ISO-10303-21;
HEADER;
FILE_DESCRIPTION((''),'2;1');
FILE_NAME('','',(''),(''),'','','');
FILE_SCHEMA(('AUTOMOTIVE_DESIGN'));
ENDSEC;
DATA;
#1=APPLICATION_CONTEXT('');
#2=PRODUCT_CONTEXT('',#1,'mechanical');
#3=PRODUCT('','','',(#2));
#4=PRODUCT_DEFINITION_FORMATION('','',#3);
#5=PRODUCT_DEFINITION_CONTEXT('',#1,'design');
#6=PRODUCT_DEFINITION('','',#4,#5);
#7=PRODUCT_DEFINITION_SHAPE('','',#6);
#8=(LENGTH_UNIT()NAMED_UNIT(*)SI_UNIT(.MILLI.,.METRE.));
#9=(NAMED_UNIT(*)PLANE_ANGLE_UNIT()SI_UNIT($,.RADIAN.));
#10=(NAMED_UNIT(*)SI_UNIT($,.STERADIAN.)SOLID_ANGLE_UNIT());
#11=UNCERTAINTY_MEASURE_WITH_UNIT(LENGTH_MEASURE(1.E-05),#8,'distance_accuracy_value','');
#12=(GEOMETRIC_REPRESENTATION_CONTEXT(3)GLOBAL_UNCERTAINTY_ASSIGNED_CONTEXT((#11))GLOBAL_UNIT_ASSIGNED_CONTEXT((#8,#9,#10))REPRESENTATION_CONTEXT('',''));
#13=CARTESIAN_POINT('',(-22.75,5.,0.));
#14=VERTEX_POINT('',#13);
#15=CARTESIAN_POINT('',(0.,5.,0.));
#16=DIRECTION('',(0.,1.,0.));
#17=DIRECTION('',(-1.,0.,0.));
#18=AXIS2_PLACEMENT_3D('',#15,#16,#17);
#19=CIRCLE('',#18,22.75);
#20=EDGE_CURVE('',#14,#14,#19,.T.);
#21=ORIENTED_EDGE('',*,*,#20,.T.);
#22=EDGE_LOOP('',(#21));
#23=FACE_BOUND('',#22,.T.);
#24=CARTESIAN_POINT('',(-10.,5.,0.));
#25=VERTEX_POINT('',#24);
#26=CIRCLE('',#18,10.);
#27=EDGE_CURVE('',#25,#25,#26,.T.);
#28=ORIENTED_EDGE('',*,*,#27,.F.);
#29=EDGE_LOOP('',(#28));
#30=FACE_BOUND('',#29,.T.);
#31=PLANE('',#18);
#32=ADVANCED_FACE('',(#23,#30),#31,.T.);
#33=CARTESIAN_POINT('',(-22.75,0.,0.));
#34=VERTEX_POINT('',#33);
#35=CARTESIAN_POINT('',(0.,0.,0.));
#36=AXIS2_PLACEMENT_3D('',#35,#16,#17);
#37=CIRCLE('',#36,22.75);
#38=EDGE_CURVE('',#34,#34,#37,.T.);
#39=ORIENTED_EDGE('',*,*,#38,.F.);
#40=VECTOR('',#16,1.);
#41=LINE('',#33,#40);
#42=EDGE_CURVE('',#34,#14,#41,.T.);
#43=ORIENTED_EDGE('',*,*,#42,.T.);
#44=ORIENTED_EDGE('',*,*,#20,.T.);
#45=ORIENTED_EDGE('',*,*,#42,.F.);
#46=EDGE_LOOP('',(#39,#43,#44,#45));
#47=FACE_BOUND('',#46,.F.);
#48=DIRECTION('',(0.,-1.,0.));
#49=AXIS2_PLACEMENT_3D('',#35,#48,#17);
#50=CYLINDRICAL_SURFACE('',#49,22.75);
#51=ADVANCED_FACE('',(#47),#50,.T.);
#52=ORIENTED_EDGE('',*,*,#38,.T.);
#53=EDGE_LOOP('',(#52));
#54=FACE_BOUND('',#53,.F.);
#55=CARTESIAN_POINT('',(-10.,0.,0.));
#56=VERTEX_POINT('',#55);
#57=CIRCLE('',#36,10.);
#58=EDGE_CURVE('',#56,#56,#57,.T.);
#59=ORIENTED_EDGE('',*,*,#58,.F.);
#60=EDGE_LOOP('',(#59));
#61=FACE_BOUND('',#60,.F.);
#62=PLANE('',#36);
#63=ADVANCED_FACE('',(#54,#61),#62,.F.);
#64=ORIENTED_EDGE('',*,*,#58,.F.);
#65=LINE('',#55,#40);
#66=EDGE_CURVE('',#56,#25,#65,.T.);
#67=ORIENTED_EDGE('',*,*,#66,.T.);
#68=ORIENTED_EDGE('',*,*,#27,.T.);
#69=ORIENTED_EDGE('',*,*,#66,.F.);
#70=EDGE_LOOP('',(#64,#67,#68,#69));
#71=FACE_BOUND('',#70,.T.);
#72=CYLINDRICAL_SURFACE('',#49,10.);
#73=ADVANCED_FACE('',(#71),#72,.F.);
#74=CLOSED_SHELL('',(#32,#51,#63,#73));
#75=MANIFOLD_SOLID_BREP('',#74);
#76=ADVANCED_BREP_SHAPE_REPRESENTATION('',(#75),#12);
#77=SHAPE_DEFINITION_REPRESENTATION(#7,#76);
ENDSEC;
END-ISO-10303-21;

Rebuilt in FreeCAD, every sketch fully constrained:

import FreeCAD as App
import Part
import Sketcher
from FreeCAD import Vector

doc = App.newDocument("Part")
params = doc.addObject("Spreadsheet::Sheet", "Params")
for row, (alias, value) in enumerate([
    ("sketch1_diameter", "20 mm"),
    ("sketch1_diameter2", "45.5 mm"),
    ("pad1_length", "5 mm"),
], start=1):
    params.set(f"A{row}", alias)
    params.set(f"B{row}", "=" + value)
    params.setAlias(f"B{row}", alias)

body = doc.addObject("PartDesign::Body", "Body")

sketch1 = body.newObject("Sketcher::SketchObject", "Sketch")
sketch1.AttachmentSupport = (doc.getObject("XZ_Plane"), [""])
sketch1.MapMode = "FlatFace"
sketch1.addGeometry(Part.Circle(Vector(0, 0, 0), Vector(0, 0, 1), 23), False)
sketch1.addGeometry(Part.Circle(Vector(0, 0, 0), Vector(0, 0, 1), 10), False)
sketch1.addConstraint(Sketcher.Constraint("Coincident", 0, 3, -1, 1))
sketch1.addConstraint(Sketcher.Constraint("Coincident", 1, 3, -1, 1))
sketch1.addConstraint(Sketcher.Constraint("Diameter", 1, 20.0))
sketch1.addConstraint(Sketcher.Constraint("Diameter", 0, 45.5))
sketch1.setExpression("Constraints[2]", "Params.sketch1_diameter")
sketch1.setExpression("Constraints[3]", "Params.sketch1_diameter2")
pad1 = body.newObject("PartDesign::Pad", "Pad")
pad1.Profile = sketch1
pad1.setExpression("Length", "Params.pad1_length")
pad1.Reversed = True

doc.recompute()
